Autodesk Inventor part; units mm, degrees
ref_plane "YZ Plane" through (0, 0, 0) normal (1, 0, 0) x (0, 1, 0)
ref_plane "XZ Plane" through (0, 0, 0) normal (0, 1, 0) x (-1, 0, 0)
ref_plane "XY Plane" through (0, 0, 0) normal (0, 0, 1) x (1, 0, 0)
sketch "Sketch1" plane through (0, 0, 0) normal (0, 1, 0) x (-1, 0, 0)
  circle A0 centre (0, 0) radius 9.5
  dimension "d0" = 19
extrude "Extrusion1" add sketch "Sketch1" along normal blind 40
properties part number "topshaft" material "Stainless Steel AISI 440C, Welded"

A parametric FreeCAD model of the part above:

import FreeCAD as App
import Part
import Sketcher
from FreeCAD import Vector
Q = App.Units.Quantity

doc = App.newDocument("Part")
params = doc.addObject("Spreadsheet::Sheet", "Params")
for row, (alias, value) in enumerate([
    ("sketch1_diameter", "19 mm"),
    ("pad1_length", "40 mm"),
], start=1):
    params.set(f"A{row}", alias)
    params.set(f"B{row}", "=" + value)
    params.setAlias(f"B{row}", alias)

body = doc.addObject("PartDesign::Body", "Body")

# Sketch on XZ plane
sketch1 = body.newObject("Sketcher::SketchObject", "Sketch")
sketch1.AttachmentSupport = (doc.getObject("XZ_Plane"), [""])
sketch1.MapMode = "FlatFace"
sketch1.addGeometry(Part.Circle(Vector(0, 0, 0), Vector(0, 0, 1), 10), False)
sketch1.addConstraint([
    Sketcher.Constraint("Coincident", 0, 3, -1, 1),
    Sketcher.Constraint("Diameter", 0, Q("19 mm")),
])
sketch1.setExpression("Constraints[1]", "Params.sketch1_diameter")
pad1 = body.newObject("PartDesign::Pad", "Pad")
pad1.Profile = sketch1
pad1.setExpression("Length", "Params.pad1_length")
pad1.Reversed = True

doc.recompute()
